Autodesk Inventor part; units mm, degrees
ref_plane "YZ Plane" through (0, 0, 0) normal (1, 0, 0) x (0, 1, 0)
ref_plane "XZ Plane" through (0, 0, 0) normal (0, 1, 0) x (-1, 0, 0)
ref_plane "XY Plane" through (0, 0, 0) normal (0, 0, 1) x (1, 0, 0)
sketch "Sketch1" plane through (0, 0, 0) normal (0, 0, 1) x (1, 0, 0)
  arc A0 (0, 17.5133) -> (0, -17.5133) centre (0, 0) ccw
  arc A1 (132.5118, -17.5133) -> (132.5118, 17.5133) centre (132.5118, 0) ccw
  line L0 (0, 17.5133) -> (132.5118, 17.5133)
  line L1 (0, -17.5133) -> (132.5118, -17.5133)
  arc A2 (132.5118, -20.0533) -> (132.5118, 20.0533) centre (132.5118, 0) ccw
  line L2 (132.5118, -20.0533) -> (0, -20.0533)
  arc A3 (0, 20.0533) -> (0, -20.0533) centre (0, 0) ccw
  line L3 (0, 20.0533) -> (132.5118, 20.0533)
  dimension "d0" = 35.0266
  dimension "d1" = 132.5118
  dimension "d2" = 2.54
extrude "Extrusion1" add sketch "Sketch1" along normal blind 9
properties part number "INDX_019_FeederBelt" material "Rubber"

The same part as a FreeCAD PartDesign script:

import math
import FreeCAD as App
import Part
import Sketcher
from FreeCAD import Vector
Q = App.Units.Quantity

doc = App.newDocument("Part")
params = doc.addObject("Spreadsheet::Sheet", "Params")
for row, (alias, value) in enumerate([
    ("sketch1_width", "5.217 in"),
    ("pad1_length", "9 mm"),
], start=1):
    params.set(f"A{row}", alias)
    params.set(f"B{row}", "=" + value)
    params.setAlias(f"B{row}", alias)

body = doc.addObject("PartDesign::Body", "Body")

# Sketch on XY plane
sketch1 = doc.addObject("Sketcher::SketchObject", "Sketch")
body.addObject(sketch1)
sketch1.AttachmentSupport = (doc.XY_Plane, [""])
sketch1.MapMode = "FlatFace"
sketch1.addGeometry([
    Part.LineSegment(Vector(0, -20, 0), Vector(133, -20, 0)),  # 0
    Part.ArcOfCircle(Part.Circle(Vector(133, 0, 0), Vector(0, 0, 1), 20), math.radians(-90), math.radians(90)),  # 1
    Part.LineSegment(Vector(133, 20, 0), Vector(0, 20, 0)),  # 2
    Part.ArcOfCircle(Part.Circle(Vector(0, 0, 0), Vector(0, 0, 1), 20), math.radians(90), math.radians(270)),  # 3
    Part.ArcOfCircle(Part.Circle(Vector(0, 0, 0), Vector(0, 0, 1), 18), math.radians(90), math.radians(270)),  # 4
    Part.LineSegment(Vector(0, 18, 0), Vector(133, 18, 0)),  # 5
    Part.ArcOfCircle(Part.Circle(Vector(133, 0, 0), Vector(0, 0, 1), 18), math.radians(-90), math.radians(90)),  # 6
    Part.LineSegment(Vector(133, -18, 0), Vector(0, -18, 0)),  # 7
], False)
sketch1.addConstraint([
    Sketcher.Constraint("Tangent", 0, 2, 1, 1),
    Sketcher.Constraint("Tangent", 1, 2, 2, 1),
    Sketcher.Constraint("Tangent", 2, 2, 3, 1),
    Sketcher.Constraint("Tangent", 3, 2, 0, 1),
    Sketcher.Constraint("Tangent", 4, 1, 5, 1),
    Sketcher.Constraint("Tangent", 5, 2, 6, 2),
    Sketcher.Constraint("Tangent", 6, 1, 7, 1),
    Sketcher.Constraint("Tangent", 7, 2, 4, 2),
    Sketcher.Constraint("Horizontal", 0),
    Sketcher.Constraint("Horizontal", 2),
    Sketcher.Constraint("Horizontal", 5),
    Sketcher.Constraint("Horizontal", 7),
    Sketcher.Constraint("Coincident", 3, 3, -1, 1),
    Sketcher.Constraint("Coincident", 4, 3, -1, 1),
    Sketcher.Constraint("Vertical", 6, 3, 0, 2),
    Sketcher.Constraint("Radius", 4, Q("0.6895 in")),
    Sketcher.Constraint("DistanceY", 4, 1, 2, 2, Q("0.1 in")),
    Sketcher.Constraint("DistanceX", 0, 1, 0, 2, Q("5.217 in")),
])
sketch1.setExpression("Constraints[17]", "Params.sketch1_width")
pad1 = doc.addObject("PartDesign::Pad", "Pad")
body.addObject(pad1)
pad1.Profile = sketch1
pad1.setExpression("Length", "Params.pad1_length")

doc.recompute()
